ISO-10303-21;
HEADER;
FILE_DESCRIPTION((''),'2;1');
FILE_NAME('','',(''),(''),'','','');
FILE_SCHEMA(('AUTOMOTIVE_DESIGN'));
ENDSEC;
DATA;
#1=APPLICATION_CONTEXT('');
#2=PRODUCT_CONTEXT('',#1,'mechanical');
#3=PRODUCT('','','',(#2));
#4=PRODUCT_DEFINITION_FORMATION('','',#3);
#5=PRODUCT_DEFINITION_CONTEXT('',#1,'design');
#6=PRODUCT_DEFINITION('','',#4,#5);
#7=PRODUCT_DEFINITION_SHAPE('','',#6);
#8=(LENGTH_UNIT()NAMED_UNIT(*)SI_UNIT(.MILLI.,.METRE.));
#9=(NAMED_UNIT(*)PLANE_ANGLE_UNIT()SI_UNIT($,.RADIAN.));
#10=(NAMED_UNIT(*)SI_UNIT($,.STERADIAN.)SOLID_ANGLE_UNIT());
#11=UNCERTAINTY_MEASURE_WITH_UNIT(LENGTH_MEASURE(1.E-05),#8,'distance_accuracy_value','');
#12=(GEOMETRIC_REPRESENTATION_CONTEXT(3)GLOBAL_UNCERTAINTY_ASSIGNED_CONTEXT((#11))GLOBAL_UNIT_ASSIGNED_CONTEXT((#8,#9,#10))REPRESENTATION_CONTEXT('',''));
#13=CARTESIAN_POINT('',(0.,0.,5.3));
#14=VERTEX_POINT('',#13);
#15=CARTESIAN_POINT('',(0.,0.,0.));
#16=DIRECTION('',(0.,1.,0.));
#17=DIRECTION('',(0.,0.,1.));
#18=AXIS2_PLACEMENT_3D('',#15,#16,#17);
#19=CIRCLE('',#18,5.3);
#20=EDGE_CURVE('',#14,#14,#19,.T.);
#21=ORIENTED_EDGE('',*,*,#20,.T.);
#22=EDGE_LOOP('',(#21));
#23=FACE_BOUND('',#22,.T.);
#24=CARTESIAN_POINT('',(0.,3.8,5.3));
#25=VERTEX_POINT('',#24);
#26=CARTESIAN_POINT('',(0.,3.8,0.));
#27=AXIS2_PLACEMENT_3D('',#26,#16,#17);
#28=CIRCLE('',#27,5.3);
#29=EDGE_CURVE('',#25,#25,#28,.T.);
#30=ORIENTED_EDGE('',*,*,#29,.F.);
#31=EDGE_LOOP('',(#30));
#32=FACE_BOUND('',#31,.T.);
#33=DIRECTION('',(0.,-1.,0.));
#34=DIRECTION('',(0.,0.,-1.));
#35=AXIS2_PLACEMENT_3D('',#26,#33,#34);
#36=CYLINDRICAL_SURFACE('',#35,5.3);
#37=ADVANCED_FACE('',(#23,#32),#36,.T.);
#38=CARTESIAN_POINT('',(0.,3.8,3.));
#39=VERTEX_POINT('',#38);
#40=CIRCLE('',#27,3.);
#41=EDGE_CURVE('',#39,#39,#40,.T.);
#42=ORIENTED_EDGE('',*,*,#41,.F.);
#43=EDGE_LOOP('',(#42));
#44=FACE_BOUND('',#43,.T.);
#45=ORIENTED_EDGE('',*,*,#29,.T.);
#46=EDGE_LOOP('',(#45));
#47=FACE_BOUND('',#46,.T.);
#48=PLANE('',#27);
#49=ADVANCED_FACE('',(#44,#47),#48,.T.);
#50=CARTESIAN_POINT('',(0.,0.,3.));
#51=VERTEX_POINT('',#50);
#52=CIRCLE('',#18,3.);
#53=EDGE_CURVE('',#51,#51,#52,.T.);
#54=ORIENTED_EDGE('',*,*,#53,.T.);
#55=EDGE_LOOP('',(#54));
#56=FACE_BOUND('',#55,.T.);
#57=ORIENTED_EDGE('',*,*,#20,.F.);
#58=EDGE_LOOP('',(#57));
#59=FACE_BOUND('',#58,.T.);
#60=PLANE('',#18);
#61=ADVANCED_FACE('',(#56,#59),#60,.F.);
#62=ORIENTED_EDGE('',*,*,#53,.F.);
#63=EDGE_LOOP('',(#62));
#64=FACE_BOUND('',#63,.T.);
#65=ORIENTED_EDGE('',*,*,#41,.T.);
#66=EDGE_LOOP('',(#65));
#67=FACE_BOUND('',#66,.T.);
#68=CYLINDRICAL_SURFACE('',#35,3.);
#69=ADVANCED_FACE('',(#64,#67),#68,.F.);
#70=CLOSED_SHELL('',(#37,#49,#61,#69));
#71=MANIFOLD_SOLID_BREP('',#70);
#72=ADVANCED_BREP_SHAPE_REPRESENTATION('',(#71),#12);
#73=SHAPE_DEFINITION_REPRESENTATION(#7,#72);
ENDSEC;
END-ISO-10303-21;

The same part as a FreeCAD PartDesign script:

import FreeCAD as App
import Part
import Sketcher
from FreeCAD import Vector
Q = App.Units.Quantity

doc = App.newDocument("Part")
body = doc.addObject("PartDesign::Body", "Body")

# Sketch on XZ plane
sketch1 = body.newObject("Sketcher::SketchObject", "Sketch")
sketch1.AttachmentSupport = (doc.getObject("XZ_Plane"), [""])
sketch1.MapMode = "FlatFace"
sketch1.addGeometry(Part.Circle(Vector(0, 0, 0), Vector(0, 0, 1), 5.3), False)
sketch1.addGeometry(Part.Circle(Vector(0, 0, 0), Vector(0, 0, 1), 3), False)
sketch1.addConstraint(Sketcher.Constraint("Coincident", 0, 3, -1, 1))
sketch1.addConstraint(Sketcher.Constraint("Coincident", 1, 3, -1, 1))
sketch1.addConstraint(Sketcher.Constraint("Diameter", 1, Q("6 mm")))
sketch1.addConstraint(Sketcher.Constraint("Diameter", 0, Q("10.6 mm")))
pad1 = body.newObject("PartDesign::Pad", "Pad")
pad1.Profile = sketch1
pad1.Length = 3.8
pad1.Reversed = True

doc.recompute()
